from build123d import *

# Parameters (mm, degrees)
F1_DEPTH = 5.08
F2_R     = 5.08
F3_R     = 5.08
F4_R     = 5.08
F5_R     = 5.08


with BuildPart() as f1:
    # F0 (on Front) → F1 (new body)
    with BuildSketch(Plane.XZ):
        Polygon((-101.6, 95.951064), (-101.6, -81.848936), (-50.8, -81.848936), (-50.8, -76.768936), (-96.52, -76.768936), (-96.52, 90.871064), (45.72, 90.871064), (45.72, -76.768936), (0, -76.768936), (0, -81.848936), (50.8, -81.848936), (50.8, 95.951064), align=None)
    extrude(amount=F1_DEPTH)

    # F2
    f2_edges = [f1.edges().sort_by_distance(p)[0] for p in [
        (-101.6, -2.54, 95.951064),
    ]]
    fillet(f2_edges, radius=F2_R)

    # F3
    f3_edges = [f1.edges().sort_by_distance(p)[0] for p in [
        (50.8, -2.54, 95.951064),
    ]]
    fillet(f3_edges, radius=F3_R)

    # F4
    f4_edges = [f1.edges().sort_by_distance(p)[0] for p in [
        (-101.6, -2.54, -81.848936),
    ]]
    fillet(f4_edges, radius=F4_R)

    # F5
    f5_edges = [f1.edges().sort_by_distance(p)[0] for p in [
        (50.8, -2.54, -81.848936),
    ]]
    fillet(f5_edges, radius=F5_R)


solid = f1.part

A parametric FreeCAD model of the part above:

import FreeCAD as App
import Part
import Sketcher

V = App.Vector
Q = App.Units.Quantity


def edges_at(feature, points):
    """Names of the edges that pass closest to the given points."""
    edges = feature.Shape.Edges
    near = lambda p: min(range(len(edges)), key=lambda i: edges[i].distToShape(Part.Vertex(*p))[0])
    return sorted({f"Edge{near(p) + 1}" for p in points})

doc = App.newDocument("Part")
body = doc.addObject("PartDesign::Body", "Body")

sketch1 = body.newObject("Sketcher::SketchObject", "Sketch")
sketch1.AttachmentSupport = (doc.getObject("XZ_Plane"), [""])
sketch1.MapMode = "FlatFace"
sketch1.addGeometry([
    Part.LineSegment(V(-102, 96, 0), V(-102, -82, 0)),
    Part.LineSegment(V(-102, -82, 0), V(-51, -82, 0)),
    Part.LineSegment(V(-51, -82, 0), V(-51, -77, 0)),
    Part.LineSegment(V(-51, -77, 0), V(-97, -77, 0)),
    Part.LineSegment(V(-97, -77, 0), V(-97, 91, 0)),
    Part.LineSegment(V(-97, 91, 0), V(46, 91, 0)),
    Part.LineSegment(V(46, 91, 0), V(46, -77, 0)),
    Part.LineSegment(V(46, -77, 0), V(0, -77, 0)),
    Part.LineSegment(V(0, -77, 0), V(0, -82, 0)),
    Part.LineSegment(V(0, -82, 0), V(51, -82, 0)),
    Part.LineSegment(V(51, -82, 0), V(51, 96, 0)),
    Part.LineSegment(V(51, 96, 0), V(-102, 96, 0)),
], False)
sketch1.addConstraint([
    Sketcher.Constraint("Coincident", 0, 2, 1, 1),
    Sketcher.Constraint("Coincident", 1, 2, 2, 1),
    Sketcher.Constraint("Coincident", 2, 2, 3, 1),
    Sketcher.Constraint("Coincident", 3, 2, 4, 1),
    Sketcher.Constraint("Coincident", 4, 2, 5, 1),
    Sketcher.Constraint("Coincident", 5, 2, 6, 1),
    Sketcher.Constraint("Coincident", 6, 2, 7, 1),
    Sketcher.Constraint("Coincident", 7, 2, 8, 1),
    Sketcher.Constraint("Coincident", 8, 2, 9, 1),
    Sketcher.Constraint("Coincident", 9, 2, 10, 1),
    Sketcher.Constraint("Coincident", 10, 2, 11, 1),
    Sketcher.Constraint("Coincident", 11, 2, 0, 1),
    Sketcher.Constraint("Vertical", 0),
    Sketcher.Constraint("Horizontal", 1),
    Sketcher.Constraint("Vertical", 2),
    Sketcher.Constraint("Horizontal", 3),
    Sketcher.Constraint("Vertical", 4),
    Sketcher.Constraint("Horizontal", 5),
    Sketcher.Constraint("Vertical", 6),
    Sketcher.Constraint("Horizontal", 7),
    Sketcher.Constraint("Vertical", 8),
    Sketcher.Constraint("Horizontal", 9),
    Sketcher.Constraint("Vertical", 10),
    Sketcher.Constraint("Horizontal", 11),
    Sketcher.Constraint("Symmetric", 1, 2, 9, 2, -2),
    Sketcher.Constraint("PointOnObject", 7, 2, -2),
    Sketcher.Constraint("Horizontal", 3, 2, 6, 2),
    Sketcher.Constraint("Equal", 3, 7),
    Sketcher.Constraint("Equal", 1, 9),
    Sketcher.Constraint("DistanceX", 1, 1, 1, 2, Q("2 in")),
    Sketcher.Constraint("DistanceY", 0, 2, 0, 1, Q("7 in")),
    Sketcher.Constraint("DistanceX", 3, 2, 3, 1, Q("1.8 in")),
    Sketcher.Constraint("DistanceY", 2, 1, 2, 2, Q("0.2 in")),
    Sketcher.Constraint("DistanceY", 4, 1, 4, 2, Q("6.6 in")),
    Sketcher.Constraint("DistanceY", 0, 2, -1, 1, Q("81.848936 mm")),
])
pad1 = body.newObject("PartDesign::Pad", "Pad")
pad1.Profile = sketch1
pad1.Length = Q("0.2 in")
doc.recompute()

fillet = body.newObject("PartDesign::Fillet", "Fillet")
fillet.Base = (pad1, edges_at(pad1, [(-101.6, -2.54, 95.951)]))
fillet.Radius = Q("0.2 in")
doc.recompute()

fillet2 = body.newObject("PartDesign::Fillet", "Fillet001")
fillet2.Base = (fillet, edges_at(fillet, [(50.8, -2.54, 95.951)]))
fillet2.Radius = Q("0.2 in")
doc.recompute()

fillet3 = body.newObject("PartDesign::Fillet", "Fillet002")
fillet3.Base = (fillet2, edges_at(fillet2, [(-101.6, -2.54, -81.849)]))
fillet3.Radius = Q("0.2 in")
doc.recompute()

fillet4 = body.newObject("PartDesign::Fillet", "Fillet003")
fillet4.Base = (fillet3, edges_at(fillet3, [(50.8, -2.54, -81.849)]))
fillet4.Radius = Q("0.2 in")

doc.recompute()
